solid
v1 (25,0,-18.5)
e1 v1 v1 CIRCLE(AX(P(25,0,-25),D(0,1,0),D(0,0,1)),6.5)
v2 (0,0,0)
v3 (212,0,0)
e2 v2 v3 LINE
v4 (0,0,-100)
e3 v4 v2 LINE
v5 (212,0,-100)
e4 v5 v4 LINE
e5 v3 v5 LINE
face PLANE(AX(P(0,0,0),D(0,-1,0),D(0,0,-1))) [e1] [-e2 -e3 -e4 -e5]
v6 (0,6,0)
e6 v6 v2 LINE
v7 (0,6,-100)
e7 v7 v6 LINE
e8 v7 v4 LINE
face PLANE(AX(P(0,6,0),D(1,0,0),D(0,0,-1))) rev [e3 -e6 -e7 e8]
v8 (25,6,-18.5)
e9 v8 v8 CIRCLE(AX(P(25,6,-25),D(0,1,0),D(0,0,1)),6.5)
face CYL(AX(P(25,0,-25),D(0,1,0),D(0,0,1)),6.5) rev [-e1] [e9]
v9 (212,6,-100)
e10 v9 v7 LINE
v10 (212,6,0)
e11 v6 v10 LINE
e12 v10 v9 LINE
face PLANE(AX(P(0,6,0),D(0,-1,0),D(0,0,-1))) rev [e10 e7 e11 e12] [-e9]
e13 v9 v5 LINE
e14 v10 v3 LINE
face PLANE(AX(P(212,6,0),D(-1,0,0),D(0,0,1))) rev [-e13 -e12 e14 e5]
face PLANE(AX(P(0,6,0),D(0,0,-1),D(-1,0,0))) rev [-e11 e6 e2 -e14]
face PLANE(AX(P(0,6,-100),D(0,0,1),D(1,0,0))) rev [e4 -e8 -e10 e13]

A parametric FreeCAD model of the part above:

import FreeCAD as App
import Part
import Sketcher

V = App.Vector
Q = App.Units.Quantity


def add_polygon(sketch, points):
    """Adds a closed chain of lines whose ends are joined by coincident constraints."""
    first, n = sketch.GeometryCount, len(points)
    for a, b in zip(points, points[1:] + points[:1]):
        sketch.addGeometry(Part.LineSegment(App.Vector(*a, 0), App.Vector(*b, 0)), False)
    for i in range(n):
        sketch.addConstraint(Sketcher.Constraint("Coincident", first + i, 2, first + (i + 1) % n, 1))

doc = App.newDocument("Part")
body = doc.addObject("PartDesign::Body", "Body")

# Sketch on XZ plane
sketch1 = doc.addObject("Sketcher::SketchObject", "Sketch")
body.addObject(sketch1)
sketch1.AttachmentSupport = (doc.XZ_Plane, [""])
sketch1.MapMode = "FlatFace"
add_polygon(sketch1, [(0, -100), (0, 0), (212, 0), (212, -100)])  # lines 0-3
sketch1.addConstraint(Sketcher.Constraint("Vertical", 0))
sketch1.addConstraint(Sketcher.Constraint("Horizontal", 1))
sketch1.addConstraint(Sketcher.Constraint("Vertical", 2))
sketch1.addConstraint(Sketcher.Constraint("Horizontal", 3))
sketch1.addConstraint(Sketcher.Constraint("Coincident", 0, 2, -1, 1))
sketch1.addConstraint(Sketcher.Constraint("DistanceX", 1, 1, 1, 2, Q("212 mm")))
sketch1.addConstraint(Sketcher.Constraint("DistanceY", 0, 1, 0, 2, Q("100 mm")))
pad1 = doc.addObject("PartDesign::Pad", "Pad")
body.addObject(pad1)
pad1.Profile = sketch1
pad1.Length = 6
pad1.Reversed = True

# Sketch on XZ plane
sketch2 = doc.addObject("Sketcher::SketchObject", "Sketch001")
body.addObject(sketch2)
sketch2.AttachmentSupport = (doc.XZ_Plane, [""])
sketch2.MapMode = "FlatFace"
sketch2.AttachmentOffset = App.Placement(V(0, 0, -6), App.Rotation())
sketch2.addGeometry(Part.Circle(V(25, -25, 0), V(0, 0, 1), 6), False)
sketch2.addConstraint(Sketcher.Constraint("Diameter", 0, Q("13 mm")))
sketch2.addConstraint(Sketcher.Constraint("DistanceX", -1, 1, 0, 3, Q("25 mm")))
sketch2.addConstraint(Sketcher.Constraint("DistanceY", 0, 3, -1, 1, Q("25 mm")))
pocket1 = doc.addObject("PartDesign::Pocket", "Pocket")
body.addObject(pocket1)
pocket1.Profile = sketch2
pocket1.Type = "ThroughAll"
pocket1.Reversed = True

doc.recompute()
